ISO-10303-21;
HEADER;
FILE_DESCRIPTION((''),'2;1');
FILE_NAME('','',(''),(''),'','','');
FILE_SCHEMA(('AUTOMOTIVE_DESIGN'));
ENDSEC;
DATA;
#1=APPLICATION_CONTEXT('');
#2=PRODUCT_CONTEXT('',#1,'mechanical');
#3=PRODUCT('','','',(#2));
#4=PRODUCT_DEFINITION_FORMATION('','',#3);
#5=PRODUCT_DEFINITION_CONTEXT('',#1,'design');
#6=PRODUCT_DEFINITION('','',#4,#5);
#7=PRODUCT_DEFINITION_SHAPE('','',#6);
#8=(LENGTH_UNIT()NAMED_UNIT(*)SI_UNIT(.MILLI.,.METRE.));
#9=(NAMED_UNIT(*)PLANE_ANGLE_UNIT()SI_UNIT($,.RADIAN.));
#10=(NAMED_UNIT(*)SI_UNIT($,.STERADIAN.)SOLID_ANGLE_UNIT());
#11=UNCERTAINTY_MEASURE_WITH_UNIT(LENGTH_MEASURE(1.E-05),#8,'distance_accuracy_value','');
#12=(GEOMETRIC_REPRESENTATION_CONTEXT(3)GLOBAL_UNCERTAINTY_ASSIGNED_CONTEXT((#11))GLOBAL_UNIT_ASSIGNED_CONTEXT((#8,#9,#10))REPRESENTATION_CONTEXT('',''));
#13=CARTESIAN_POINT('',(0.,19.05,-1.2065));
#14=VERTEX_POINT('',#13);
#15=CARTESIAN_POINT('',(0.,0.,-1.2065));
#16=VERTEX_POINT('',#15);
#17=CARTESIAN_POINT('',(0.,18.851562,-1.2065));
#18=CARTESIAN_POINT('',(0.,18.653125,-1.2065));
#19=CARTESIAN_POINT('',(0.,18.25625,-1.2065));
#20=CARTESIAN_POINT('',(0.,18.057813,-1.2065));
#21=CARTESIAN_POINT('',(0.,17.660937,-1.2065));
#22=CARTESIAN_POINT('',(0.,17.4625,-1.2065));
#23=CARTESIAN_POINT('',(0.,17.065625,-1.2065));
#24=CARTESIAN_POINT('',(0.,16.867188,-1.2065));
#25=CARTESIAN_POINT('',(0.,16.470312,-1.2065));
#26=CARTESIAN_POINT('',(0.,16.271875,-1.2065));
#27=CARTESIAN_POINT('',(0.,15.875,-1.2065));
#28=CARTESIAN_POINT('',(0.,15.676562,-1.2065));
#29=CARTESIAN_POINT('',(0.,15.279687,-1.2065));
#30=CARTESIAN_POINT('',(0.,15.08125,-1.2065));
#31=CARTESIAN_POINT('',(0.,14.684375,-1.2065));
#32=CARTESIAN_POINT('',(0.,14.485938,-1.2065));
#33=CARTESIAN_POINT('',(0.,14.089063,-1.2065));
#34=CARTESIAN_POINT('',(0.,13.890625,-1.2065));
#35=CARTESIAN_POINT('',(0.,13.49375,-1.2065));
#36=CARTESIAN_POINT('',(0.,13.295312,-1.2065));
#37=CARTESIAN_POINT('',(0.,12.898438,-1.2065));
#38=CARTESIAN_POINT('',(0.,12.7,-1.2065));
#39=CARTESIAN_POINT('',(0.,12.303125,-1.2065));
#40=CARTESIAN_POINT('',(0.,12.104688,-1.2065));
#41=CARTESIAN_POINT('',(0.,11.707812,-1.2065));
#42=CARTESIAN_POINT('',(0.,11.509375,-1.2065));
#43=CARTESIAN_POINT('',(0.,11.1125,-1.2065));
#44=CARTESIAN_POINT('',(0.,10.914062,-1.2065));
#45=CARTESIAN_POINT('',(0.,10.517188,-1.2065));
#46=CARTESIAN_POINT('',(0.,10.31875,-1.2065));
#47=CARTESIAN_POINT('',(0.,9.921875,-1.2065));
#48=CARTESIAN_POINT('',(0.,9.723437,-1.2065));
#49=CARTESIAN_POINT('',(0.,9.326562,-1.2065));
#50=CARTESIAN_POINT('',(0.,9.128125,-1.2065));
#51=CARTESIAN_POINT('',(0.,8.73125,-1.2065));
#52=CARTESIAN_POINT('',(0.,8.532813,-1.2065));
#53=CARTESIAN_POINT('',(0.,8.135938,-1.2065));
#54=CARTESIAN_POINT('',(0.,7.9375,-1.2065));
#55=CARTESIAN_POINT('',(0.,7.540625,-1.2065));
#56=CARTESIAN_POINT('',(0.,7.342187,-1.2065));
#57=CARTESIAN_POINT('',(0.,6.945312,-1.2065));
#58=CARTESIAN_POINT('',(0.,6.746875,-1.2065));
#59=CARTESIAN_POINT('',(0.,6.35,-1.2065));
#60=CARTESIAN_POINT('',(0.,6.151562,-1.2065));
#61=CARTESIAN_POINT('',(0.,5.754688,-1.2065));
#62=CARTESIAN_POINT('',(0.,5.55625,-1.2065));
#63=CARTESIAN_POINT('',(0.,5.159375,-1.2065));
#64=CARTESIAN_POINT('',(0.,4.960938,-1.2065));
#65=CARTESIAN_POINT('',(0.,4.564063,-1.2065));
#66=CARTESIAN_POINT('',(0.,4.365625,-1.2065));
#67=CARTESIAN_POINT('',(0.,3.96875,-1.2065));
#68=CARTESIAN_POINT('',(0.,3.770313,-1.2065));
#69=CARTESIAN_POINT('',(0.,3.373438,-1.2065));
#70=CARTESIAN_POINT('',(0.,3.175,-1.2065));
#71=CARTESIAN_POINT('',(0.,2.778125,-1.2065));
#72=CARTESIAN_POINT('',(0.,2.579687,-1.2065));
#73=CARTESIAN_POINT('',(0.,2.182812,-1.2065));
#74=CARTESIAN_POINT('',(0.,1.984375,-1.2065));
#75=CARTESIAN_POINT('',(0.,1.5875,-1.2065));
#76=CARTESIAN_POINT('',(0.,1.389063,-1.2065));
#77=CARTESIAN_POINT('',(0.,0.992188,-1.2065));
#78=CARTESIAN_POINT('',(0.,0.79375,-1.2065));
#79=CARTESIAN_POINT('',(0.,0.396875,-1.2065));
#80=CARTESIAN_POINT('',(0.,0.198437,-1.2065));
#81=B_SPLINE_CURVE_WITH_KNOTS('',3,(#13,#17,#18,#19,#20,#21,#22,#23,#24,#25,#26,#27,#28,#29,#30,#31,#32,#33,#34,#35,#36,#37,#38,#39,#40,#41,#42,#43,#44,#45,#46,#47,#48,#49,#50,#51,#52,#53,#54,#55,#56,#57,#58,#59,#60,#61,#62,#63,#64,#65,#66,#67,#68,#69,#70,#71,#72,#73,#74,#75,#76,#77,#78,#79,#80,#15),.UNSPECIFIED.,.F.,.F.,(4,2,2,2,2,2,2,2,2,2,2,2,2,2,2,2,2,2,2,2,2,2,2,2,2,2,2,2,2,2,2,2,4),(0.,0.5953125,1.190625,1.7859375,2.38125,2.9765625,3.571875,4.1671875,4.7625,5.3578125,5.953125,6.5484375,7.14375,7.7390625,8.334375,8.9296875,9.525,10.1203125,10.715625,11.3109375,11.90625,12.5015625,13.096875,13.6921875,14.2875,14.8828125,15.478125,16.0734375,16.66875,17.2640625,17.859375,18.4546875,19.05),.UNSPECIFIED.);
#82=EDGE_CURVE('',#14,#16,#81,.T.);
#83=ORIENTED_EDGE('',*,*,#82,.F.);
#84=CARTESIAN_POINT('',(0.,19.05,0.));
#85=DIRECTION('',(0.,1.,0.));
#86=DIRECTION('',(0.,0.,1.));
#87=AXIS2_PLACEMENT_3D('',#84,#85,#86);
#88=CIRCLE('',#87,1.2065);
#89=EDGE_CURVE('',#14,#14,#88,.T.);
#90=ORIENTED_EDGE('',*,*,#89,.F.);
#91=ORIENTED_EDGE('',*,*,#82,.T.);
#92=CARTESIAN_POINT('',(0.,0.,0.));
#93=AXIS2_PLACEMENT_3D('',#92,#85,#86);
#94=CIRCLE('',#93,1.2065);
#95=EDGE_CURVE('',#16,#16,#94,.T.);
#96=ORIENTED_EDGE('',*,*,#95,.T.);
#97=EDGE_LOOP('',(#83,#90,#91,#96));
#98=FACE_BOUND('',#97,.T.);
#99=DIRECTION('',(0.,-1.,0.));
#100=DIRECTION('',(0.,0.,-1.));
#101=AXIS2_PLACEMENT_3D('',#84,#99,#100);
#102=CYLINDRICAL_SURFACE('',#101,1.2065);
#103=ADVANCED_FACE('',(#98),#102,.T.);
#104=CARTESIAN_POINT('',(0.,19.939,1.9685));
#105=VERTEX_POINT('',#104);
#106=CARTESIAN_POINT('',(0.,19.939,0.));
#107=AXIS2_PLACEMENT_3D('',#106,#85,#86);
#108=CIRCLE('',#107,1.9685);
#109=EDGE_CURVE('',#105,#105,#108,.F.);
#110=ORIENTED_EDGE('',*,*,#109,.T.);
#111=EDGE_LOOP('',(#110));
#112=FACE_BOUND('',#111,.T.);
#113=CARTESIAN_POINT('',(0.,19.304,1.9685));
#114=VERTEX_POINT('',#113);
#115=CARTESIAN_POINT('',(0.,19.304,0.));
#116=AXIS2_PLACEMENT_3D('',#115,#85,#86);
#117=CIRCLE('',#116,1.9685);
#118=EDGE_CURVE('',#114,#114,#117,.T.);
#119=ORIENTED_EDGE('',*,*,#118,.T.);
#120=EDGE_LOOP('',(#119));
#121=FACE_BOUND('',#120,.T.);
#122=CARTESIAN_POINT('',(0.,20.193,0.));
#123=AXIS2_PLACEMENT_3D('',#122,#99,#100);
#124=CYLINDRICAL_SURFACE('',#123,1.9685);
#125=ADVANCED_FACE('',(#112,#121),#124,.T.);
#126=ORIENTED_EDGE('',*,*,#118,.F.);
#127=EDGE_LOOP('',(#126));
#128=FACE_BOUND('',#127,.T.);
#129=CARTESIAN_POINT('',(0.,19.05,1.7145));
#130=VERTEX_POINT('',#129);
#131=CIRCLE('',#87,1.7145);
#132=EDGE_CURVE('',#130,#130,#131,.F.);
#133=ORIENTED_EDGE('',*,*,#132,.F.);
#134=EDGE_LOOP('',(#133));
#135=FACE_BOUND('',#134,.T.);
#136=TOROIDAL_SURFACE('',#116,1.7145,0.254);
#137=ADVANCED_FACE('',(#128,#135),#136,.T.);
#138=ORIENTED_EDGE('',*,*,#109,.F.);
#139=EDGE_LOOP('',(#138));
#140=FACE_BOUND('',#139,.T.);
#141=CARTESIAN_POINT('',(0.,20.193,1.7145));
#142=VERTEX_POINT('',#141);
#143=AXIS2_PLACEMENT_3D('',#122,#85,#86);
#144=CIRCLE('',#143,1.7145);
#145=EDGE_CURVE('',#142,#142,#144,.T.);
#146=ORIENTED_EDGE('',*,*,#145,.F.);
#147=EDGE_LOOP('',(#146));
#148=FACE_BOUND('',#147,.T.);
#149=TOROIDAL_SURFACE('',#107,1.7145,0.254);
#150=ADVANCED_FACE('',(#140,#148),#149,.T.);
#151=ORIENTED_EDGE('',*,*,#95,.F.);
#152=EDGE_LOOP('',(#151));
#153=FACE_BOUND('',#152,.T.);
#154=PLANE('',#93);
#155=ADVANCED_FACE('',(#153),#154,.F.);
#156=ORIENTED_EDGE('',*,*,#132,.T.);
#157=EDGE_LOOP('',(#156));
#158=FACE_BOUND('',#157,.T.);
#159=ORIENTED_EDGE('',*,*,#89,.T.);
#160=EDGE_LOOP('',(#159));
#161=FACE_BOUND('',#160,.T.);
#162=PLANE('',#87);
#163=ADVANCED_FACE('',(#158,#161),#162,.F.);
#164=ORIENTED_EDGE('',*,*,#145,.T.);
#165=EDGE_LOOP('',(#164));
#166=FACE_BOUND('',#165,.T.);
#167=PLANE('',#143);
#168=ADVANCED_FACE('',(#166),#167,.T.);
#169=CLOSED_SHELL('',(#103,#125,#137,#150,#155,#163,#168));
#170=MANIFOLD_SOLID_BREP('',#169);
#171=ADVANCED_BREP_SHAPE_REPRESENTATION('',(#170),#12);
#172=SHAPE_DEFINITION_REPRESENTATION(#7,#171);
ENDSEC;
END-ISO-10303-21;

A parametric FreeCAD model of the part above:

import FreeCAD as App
import Part
import Sketcher
Q = App.Units.Quantity


def edges_at(feature, points):
    """Names of the edges that pass closest to the given points."""
    edges = feature.Shape.Edges
    near = lambda p: min(range(len(edges)), key=lambda i: edges[i].distToShape(Part.Vertex(*p))[0])
    return sorted({f"Edge{near(p) + 1}" for p in points})

doc = App.newDocument("Part")
params = doc.addObject("Spreadsheet::Sheet", "Params")
for row, (alias, value) in enumerate([
    ("sketch1_diameter", "0.095 in"),
    ("pad1_length", "0.75 in"),
    ("sketch2_diameter", "0.155 in"),
    ("pad2_length", "0.045 in"),
    ("fillet_radius", "0.01 in"),
], start=1):
    params.set(f"A{row}", alias)
    params.set(f"B{row}", "=" + value)
    params.setAlias(f"B{row}", alias)

body = doc.addObject("PartDesign::Body", "Body")

sketch1 = doc.addObject("Sketcher::SketchObject", "Sketch")
body.addObject(sketch1)
sketch1.AttachmentSupport = (doc.XZ_Plane, [""])
sketch1.MapMode = "FlatFace"
sketch1.addGeometry(Part.Circle(App.Vector(0, 0, 0), App.Vector(0, 0, 1), 1.2), False)
sketch1.addConstraint([
    Sketcher.Constraint("Coincident", 0, 3, -1, 1),
    Sketcher.Constraint("Diameter", 0, Q("0.095 in")),
])
sketch1.setExpression("Constraints[1]", "Params.sketch1_diameter")
pad1 = doc.addObject("PartDesign::Pad", "Pad")
body.addObject(pad1)
pad1.Profile = sketch1
pad1.setExpression("Length", "Params.pad1_length")
pad1.Reversed = True

sketch2 = doc.addObject("Sketcher::SketchObject", "Sketch001")
body.addObject(sketch2)
sketch2.AttachmentSupport = (doc.XZ_Plane, [""])
sketch2.MapMode = "FlatFace"
sketch2.AttachmentOffset = App.Placement(App.Vector(0, 0, -0.75 * 25.4), App.Rotation())
sketch2.addGeometry(Part.Circle(App.Vector(0, 0, 0), App.Vector(0, 0, 1), 2), False)
sketch2.addConstraint([
    Sketcher.Constraint("Coincident", 0, 3, -1, 1),
    Sketcher.Constraint("Diameter", 0, Q("0.155 in")),
])
sketch2.setExpression("Constraints[1]", "Params.sketch2_diameter")
pad2 = doc.addObject("PartDesign::Pad", "Pad001")
body.addObject(pad2)
pad2.Profile = sketch2
pad2.setExpression("Length", "Params.pad2_length")
pad2.Reversed = True
doc.recompute()

fillet = doc.addObject("PartDesign::Fillet", "Fillet")
body.addObject(fillet)
fillet.Base = (pad2, edges_at(pad2, [(0, 19.05, -1.968), (0, 20.193, -1.968)]))
fillet.setExpression("Radius", "Params.fillet_radius")

doc.recompute()
